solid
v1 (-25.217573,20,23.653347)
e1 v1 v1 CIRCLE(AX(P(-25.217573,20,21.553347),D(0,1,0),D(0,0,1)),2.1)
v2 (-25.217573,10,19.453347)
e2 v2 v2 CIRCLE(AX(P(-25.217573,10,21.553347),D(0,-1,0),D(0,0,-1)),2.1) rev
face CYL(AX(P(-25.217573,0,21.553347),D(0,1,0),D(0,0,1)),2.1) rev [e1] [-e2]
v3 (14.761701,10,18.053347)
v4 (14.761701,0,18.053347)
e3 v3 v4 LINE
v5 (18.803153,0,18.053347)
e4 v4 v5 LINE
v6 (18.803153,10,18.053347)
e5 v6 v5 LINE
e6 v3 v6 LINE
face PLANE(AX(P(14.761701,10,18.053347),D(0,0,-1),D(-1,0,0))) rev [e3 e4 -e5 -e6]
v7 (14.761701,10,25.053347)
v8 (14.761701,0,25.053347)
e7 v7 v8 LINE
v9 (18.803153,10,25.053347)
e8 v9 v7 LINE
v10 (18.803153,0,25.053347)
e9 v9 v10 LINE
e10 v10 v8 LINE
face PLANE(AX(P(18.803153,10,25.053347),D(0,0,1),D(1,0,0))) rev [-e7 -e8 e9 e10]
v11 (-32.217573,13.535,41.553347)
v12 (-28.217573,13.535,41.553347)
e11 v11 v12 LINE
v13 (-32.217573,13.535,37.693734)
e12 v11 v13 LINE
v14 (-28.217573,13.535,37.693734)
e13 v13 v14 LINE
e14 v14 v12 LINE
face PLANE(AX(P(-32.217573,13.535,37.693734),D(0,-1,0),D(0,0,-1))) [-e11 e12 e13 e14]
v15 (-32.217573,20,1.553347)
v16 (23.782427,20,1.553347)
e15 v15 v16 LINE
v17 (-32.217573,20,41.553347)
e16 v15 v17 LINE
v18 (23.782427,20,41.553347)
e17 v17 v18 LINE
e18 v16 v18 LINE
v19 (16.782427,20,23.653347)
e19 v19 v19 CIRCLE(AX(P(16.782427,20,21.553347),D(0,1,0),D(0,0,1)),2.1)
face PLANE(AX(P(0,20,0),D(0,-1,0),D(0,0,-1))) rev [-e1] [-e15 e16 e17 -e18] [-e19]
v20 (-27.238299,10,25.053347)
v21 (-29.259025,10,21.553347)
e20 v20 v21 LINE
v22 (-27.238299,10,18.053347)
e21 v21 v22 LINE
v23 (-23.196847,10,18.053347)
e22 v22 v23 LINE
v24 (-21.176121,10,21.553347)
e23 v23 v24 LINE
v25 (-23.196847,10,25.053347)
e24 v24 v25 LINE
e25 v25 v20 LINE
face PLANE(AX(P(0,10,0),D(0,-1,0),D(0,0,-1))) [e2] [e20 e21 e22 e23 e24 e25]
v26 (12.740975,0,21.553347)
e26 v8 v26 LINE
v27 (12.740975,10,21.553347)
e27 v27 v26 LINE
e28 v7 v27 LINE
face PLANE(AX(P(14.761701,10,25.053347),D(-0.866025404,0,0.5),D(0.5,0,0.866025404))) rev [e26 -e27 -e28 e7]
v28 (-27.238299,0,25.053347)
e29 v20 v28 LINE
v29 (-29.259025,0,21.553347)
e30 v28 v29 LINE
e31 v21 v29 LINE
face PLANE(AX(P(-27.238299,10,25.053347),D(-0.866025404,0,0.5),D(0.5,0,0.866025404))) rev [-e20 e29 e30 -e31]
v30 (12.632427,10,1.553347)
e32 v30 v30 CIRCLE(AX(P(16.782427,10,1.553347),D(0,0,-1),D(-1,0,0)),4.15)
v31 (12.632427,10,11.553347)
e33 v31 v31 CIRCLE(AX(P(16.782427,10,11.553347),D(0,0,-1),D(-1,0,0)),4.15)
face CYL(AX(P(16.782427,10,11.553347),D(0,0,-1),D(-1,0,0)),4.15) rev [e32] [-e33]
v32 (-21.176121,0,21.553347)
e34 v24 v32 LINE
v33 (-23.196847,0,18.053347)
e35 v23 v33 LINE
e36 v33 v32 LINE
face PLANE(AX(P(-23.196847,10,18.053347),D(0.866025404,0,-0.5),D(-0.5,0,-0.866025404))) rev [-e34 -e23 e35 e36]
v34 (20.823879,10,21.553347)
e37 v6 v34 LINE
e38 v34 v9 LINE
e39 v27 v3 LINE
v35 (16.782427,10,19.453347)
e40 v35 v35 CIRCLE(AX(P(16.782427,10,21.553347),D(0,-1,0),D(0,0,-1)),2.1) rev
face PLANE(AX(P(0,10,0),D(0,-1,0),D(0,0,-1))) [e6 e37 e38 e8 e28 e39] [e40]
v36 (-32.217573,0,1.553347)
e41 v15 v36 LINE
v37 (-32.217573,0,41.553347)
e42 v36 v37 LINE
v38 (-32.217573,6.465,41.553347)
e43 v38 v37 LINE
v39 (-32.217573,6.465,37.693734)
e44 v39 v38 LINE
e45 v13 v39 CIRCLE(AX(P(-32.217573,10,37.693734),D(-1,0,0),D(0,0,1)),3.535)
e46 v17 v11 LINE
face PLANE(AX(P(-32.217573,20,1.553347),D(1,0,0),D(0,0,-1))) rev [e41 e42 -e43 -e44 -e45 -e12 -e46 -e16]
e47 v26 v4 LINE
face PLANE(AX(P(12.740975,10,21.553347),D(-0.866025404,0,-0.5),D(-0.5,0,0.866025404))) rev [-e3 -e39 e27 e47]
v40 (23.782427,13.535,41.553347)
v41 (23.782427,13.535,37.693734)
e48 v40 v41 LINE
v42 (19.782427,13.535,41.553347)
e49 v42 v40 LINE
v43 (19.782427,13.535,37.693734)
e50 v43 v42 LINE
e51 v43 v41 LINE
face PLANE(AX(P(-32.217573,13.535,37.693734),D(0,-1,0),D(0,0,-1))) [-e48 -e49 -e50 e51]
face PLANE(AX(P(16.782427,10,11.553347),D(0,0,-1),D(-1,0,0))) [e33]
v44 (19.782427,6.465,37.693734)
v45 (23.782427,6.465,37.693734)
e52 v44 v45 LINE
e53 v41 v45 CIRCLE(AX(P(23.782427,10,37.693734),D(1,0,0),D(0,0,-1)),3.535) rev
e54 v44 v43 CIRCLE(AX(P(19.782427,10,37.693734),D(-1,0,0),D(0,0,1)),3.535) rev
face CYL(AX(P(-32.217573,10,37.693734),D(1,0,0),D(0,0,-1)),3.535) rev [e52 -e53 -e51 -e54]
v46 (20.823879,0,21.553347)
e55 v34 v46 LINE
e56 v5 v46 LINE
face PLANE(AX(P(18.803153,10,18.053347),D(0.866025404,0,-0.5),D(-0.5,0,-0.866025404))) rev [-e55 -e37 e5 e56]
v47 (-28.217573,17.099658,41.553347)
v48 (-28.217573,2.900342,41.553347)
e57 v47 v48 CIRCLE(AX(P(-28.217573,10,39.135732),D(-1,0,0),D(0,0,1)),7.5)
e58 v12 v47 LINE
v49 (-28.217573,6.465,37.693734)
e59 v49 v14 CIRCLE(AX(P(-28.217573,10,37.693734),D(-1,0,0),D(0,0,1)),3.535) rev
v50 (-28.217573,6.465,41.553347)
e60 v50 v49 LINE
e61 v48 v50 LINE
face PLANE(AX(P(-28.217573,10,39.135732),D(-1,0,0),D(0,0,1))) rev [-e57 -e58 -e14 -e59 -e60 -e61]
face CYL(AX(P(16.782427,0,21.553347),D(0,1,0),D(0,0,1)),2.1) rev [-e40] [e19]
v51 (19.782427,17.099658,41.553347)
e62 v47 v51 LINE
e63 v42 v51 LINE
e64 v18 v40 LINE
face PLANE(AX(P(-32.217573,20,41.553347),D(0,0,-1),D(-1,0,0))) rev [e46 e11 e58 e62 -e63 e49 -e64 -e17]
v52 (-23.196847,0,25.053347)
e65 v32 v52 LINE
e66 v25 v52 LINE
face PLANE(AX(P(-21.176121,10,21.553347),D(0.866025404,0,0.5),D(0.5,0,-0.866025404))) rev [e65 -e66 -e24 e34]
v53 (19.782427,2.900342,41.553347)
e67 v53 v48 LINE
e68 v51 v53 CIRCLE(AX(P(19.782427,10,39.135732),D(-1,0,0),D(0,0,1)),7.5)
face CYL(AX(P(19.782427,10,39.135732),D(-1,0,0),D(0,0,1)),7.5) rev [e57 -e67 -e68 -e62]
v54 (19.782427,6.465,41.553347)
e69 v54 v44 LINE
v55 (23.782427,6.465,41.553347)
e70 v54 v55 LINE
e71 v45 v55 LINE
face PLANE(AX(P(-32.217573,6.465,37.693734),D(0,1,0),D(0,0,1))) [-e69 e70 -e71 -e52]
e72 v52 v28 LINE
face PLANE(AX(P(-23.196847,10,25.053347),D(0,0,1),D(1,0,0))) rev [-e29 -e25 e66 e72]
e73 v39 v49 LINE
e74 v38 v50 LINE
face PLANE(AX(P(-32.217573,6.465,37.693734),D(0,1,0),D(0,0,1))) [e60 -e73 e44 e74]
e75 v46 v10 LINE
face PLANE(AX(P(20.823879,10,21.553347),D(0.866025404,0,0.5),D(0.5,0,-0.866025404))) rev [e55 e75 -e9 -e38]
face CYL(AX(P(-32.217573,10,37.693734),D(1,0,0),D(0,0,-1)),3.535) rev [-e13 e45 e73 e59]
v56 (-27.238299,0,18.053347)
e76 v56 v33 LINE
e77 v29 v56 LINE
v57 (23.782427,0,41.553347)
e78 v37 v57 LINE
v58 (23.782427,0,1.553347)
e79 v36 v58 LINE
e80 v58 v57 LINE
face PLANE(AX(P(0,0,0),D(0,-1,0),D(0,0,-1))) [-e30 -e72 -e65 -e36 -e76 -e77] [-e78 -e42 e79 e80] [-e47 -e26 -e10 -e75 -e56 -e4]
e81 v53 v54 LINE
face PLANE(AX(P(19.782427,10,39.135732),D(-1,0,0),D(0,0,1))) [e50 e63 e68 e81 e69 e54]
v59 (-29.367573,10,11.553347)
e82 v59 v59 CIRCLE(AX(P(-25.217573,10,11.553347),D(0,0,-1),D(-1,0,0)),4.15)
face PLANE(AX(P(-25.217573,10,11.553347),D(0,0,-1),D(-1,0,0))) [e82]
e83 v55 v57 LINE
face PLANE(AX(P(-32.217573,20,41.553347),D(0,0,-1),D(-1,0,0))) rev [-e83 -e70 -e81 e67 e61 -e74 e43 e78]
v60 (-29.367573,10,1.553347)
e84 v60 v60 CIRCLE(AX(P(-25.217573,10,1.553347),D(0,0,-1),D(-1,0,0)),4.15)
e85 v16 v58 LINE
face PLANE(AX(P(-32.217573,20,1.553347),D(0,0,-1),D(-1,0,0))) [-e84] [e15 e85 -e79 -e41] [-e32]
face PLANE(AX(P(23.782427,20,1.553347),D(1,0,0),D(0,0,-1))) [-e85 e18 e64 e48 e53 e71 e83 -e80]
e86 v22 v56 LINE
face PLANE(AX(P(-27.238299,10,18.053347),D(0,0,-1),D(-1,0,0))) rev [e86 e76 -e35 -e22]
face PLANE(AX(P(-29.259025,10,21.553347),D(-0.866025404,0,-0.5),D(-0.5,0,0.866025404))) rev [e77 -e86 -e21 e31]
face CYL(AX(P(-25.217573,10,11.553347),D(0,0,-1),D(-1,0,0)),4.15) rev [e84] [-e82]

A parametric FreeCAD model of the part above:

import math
import FreeCAD as App
import Part
import Sketcher
from FreeCAD import Vector
Q = App.Units.Quantity


def add_polygon(sketch, points):
    """Adds a closed chain of lines whose ends are joined by coincident constraints."""
    first, n = sketch.GeometryCount, len(points)
    for a, b in zip(points, points[1:] + points[:1]):
        sketch.addGeometry(Part.LineSegment(App.Vector(*a, 0), App.Vector(*b, 0)), False)
    for i in range(n):
        sketch.addConstraint(Sketcher.Constraint("Coincident", first + i, 2, first + (i + 1) % n, 1))

doc = App.newDocument("Part")
body = doc.addObject("PartDesign::Body", "Body")

sketch1 = body.newObject("Sketcher::SketchObject", "Sketch")
sketch1.AttachmentSupport = (doc.getObject("XZ_Plane"), [""])
sketch1.MapMode = "FlatFace"
add_polygon(sketch1, [(-32.217573, 1.553347), (-32.217573, 41.553347), (23.782427, 41.553347), (23.782427, 1.553347)])
sketch1.addConstraint(Sketcher.Constraint("Vertical", 0))
sketch1.addConstraint(Sketcher.Constraint("Horizontal", 1))
sketch1.addConstraint(Sketcher.Constraint("Vertical", 2))
sketch1.addConstraint(Sketcher.Constraint("Horizontal", 3))
sketch1.addConstraint(Sketcher.Constraint("DistanceX", 1, 1, 1, 2, Q("56 mm")))
sketch1.addConstraint(Sketcher.Constraint("DistanceY", 0, 1, 0, 2, Q("40 mm")))
sketch1.addConstraint(Sketcher.Constraint("DistanceX", 0, 2, -1, 1, Q("32.217573 mm")))
sketch1.addConstraint(Sketcher.Constraint("DistanceY", -1, 1, 0, 2, Q("41.553347 mm")))
pad1 = body.newObject("PartDesign::Pad", "Pad")
pad1.Profile = sketch1
pad1.Length = 20
pad1.Reversed = True

sketch2 = body.newObject("Sketcher::SketchObject", "Sketch001")
sketch2.AttachmentSupport = (doc.getObject("YZ_Plane"), [""])
sketch2.MapMode = "FlatFace"
sketch2.AttachmentOffset = App.Placement(Vector(0, 0, -28.217573), App.Rotation())
sketch2.addGeometry(Part.Circle(Vector(10, 39.135732, 0), Vector(0, 0, 1), 7.5), False)
sketch2.addConstraint(Sketcher.Constraint("Diameter", 0, Q("15 mm")))
sketch2.addConstraint(Sketcher.Constraint("DistanceX", -1, 1, 0, 3, Q("10 mm")))
sketch2.addConstraint(Sketcher.Constraint("DistanceY", -1, 1, 0, 3, Q("39.135732 mm")))
pocket1 = body.newObject("PartDesign::Pocket", "Pocket")
pocket1.Profile = sketch2
pocket1.Length = 48
pocket1.Reversed = True

sketch3 = body.newObject("Sketcher::SketchObject", "Sketch002")
sketch3.AttachmentSupport = (doc.getObject("YZ_Plane"), [""])
sketch3.MapMode = "FlatFace"
sketch3.AttachmentOffset = App.Placement(Vector(0, 0, 19.782427), App.Rotation())
sketch3.addGeometry(Part.LineSegment(Vector(13.535, 41.553347, 0), Vector(13.535, 37.693734, 0)), False)
sketch3.addGeometry(Part.ArcOfCircle(Part.Circle(Vector(10, 37.693734, 0), Vector(0, 0, 1), 3.535), math.radians(180), math.radians(360)), False)
sketch3.addGeometry(Part.LineSegment(Vector(6.465, 37.693734, 0), Vector(6.465, 41.553347, 0)), False)
sketch3.addGeometry(Part.LineSegment(Vector(6.465, 41.553347, 0), Vector(13.535, 41.553347, 0)), False)
sketch3.addConstraint(Sketcher.Constraint("Tangent", 0, 2, 1, 2))
sketch3.addConstraint(Sketcher.Constraint("Tangent", 1, 1, 2, 1))
sketch3.addConstraint(Sketcher.Constraint("Coincident", 2, 2, 3, 1))
sketch3.addConstraint(Sketcher.Constraint("Coincident", 3, 2, 0, 1))
sketch3.addConstraint(Sketcher.Constraint("Vertical", 0))
sketch3.addConstraint(Sketcher.Constraint("Vertical", 2))
sketch3.addConstraint(Sketcher.Constraint("Horizontal", 3))
sketch3.addConstraint(Sketcher.Constraint("DistanceX", -1, 1, 1, 3, Q("10 mm")))
sketch3.addConstraint(Sketcher.Constraint("Radius", 1, Q("3.535 mm")))
sketch3.addConstraint(Sketcher.Constraint("DistanceY", 0, 2, 0, 1, Q("3.859613 mm")))
sketch3.addConstraint(Sketcher.Constraint("DistanceY", -1, 1, 1, 3, Q("37.693734 mm")))
pocket2 = body.newObject("PartDesign::Pocket", "Pocket001")
pocket2.Profile = sketch3
pocket2.Type = "ThroughAll"
pocket2.Midplane = True

sketch4 = body.newObject("Sketcher::SketchObject", "Sketch003")
sketch4.AttachmentSupport = (doc.getObject("XY_Plane"), [""])
sketch4.MapMode = "FlatFace"
sketch4.AttachmentOffset = App.Placement(Vector(0, 0, 1.553347), App.Rotation())
sketch4.addGeometry(Part.Circle(Vector(16.782427, 10, 0), Vector(0, 0, 1), 4.15), False)
sketch4.addGeometry(Part.Circle(Vector(-25.217573, 10, 0), Vector(0, 0, 1), 4.15), False)
sketch4.addConstraint(Sketcher.Constraint("Equal", 0, 1))
sketch4.addConstraint(Sketcher.Constraint("Horizontal", 0, 3, 1, 3))
sketch4.addConstraint(Sketcher.Constraint("Diameter", 0, Q("8.3 mm")))
sketch4.addConstraint(Sketcher.Constraint("DistanceY", -1, 1, 0, 3, Q("10 mm")))
sketch4.addConstraint(Sketcher.Constraint("DistanceX", 1, 3, 0, 3, Q("42 mm")))
sketch4.addConstraint(Sketcher.Constraint("DistanceX", -1, 1, 0, 3, Q("16.782427 mm")))
pocket3 = body.newObject("PartDesign::Pocket", "Pocket002")
pocket3.Profile = sketch4
pocket3.Length = 10
pocket3.Reversed = True

sketch5 = body.newObject("Sketcher::SketchObject", "Sketch004")
sketch5.AttachmentSupport = (doc.getObject("XZ_Plane"), [""])
sketch5.MapMode = "FlatFace"
sketch5.AttachmentOffset = App.Placement(Vector(0, 0, -20), App.Rotation())
sketch5.addGeometry(Part.Circle(Vector(-25.217573, 21.553347, 0), Vector(0, 0, 1), 2.1), False)
sketch5.addGeometry(Part.Circle(Vector(16.782427, 21.553347, 0), Vector(0, 0, 1), 2.1), False)
sketch5.addConstraint(Sketcher.Constraint("Equal", 0, 1))
sketch5.addConstraint(Sketcher.Constraint("Horizontal", 0, 3, 1, 3))
sketch5.addConstraint(Sketcher.Constraint("Diameter", 0, Q("4.2 mm")))
sketch5.addConstraint(Sketcher.Constraint("DistanceX", 0, 3, 1, 3, Q("42 mm")))
sketch5.addConstraint(Sketcher.Constraint("DistanceX", 0, 3, -1, 1, Q("25.217573 mm")))
sketch5.addConstraint(Sketcher.Constraint("DistanceY", -1, 1, 0, 3, Q("21.553347 mm")))
pocket4 = body.newObject("PartDesign::Pocket", "Pocket003")
pocket4.Profile = sketch5
pocket4.Type = "ThroughAll"
pocket4.Reversed = True

sketch6 = body.newObject("Sketcher::SketchObject", "Sketch005")
sketch6.AttachmentSupport = (doc.getObject("XZ_Plane"), [""])
sketch6.MapMode = "FlatFace"
add_polygon(sketch6, [(-21.176121, 21.553347), (-23.196847, 25.053347), (-27.238299, 25.053347), (-29.259025, 21.553347), (-27.238299, 18.053347), (-23.196847, 18.053347)])
add_polygon(sketch6, [(20.823879, 21.553347), (18.803153, 25.053347), (14.761701, 25.053347), (12.740975, 21.553347), (14.761701, 18.053347), (18.803153, 18.053347)])
sketch6.addConstraint(Sketcher.Constraint("Horizontal", 1))
sketch6.addConstraint(Sketcher.Constraint("Horizontal", 4))
sketch6.addConstraint(Sketcher.Constraint("Horizontal", 7))
sketch6.addConstraint(Sketcher.Constraint("Horizontal", 10))
sketch6.addConstraint(Sketcher.Constraint("Parallel", 0, 3))
sketch6.addConstraint(Sketcher.Constraint("Parallel", 2, 5))
sketch6.addConstraint(Sketcher.Constraint("Parallel", 3, 6))
sketch6.addConstraint(Sketcher.Constraint("Parallel", 5, 8))
sketch6.addConstraint(Sketcher.Constraint("Parallel", 6, 9))
sketch6.addConstraint(Sketcher.Constraint("Parallel", 8, 11))
sketch6.addConstraint(Sketcher.Constraint("Horizontal", 2, 2, 5, 2))
sketch6.addConstraint(Sketcher.Constraint("Horizontal", 1, 2, 6, 2))
sketch6.addConstraint(Sketcher.Constraint("Horizontal", 5, 2, 8, 2))
sketch6.addConstraint(Sketcher.Constraint("Horizontal", 4, 2, 9, 2))
sketch6.addConstraint(Sketcher.Constraint("Horizontal", 8, 2, 11, 2))
sketch6.addConstraint(Sketcher.Constraint("Vertical", 1, 2, 3, 2))
sketch6.addConstraint(Sketcher.Constraint("Vertical", 0, 2, 4, 2))
sketch6.addConstraint(Sketcher.Constraint("Equal", 4, 7))
sketch6.addConstraint(Sketcher.Constraint("Angle", 0, Q("120 deg")))
sketch6.addConstraint(Sketcher.Constraint("DistanceY", 3, 2, 1, 2, Q("7 mm")))
sketch6.addConstraint(Sketcher.Constraint("DistanceX", 0, 2, 6, 2, Q("42 mm")))
sketch6.addConstraint(Sketcher.Constraint("DistanceX", 1, 2, 1, 1, Q("4.041452 mm")))
sketch6.addConstraint(Sketcher.Constraint("DistanceX", 1, 2, -1, 1, Q("27.238299 mm")))
sketch6.addConstraint(Sketcher.Constraint("DistanceY", -1, 1, 0, 2, Q("25.053347 mm")))
pocket5 = body.newObject("PartDesign::Pocket", "Pocket004")
pocket5.Profile = sketch6
pocket5.Length = 10

doc.recompute()
